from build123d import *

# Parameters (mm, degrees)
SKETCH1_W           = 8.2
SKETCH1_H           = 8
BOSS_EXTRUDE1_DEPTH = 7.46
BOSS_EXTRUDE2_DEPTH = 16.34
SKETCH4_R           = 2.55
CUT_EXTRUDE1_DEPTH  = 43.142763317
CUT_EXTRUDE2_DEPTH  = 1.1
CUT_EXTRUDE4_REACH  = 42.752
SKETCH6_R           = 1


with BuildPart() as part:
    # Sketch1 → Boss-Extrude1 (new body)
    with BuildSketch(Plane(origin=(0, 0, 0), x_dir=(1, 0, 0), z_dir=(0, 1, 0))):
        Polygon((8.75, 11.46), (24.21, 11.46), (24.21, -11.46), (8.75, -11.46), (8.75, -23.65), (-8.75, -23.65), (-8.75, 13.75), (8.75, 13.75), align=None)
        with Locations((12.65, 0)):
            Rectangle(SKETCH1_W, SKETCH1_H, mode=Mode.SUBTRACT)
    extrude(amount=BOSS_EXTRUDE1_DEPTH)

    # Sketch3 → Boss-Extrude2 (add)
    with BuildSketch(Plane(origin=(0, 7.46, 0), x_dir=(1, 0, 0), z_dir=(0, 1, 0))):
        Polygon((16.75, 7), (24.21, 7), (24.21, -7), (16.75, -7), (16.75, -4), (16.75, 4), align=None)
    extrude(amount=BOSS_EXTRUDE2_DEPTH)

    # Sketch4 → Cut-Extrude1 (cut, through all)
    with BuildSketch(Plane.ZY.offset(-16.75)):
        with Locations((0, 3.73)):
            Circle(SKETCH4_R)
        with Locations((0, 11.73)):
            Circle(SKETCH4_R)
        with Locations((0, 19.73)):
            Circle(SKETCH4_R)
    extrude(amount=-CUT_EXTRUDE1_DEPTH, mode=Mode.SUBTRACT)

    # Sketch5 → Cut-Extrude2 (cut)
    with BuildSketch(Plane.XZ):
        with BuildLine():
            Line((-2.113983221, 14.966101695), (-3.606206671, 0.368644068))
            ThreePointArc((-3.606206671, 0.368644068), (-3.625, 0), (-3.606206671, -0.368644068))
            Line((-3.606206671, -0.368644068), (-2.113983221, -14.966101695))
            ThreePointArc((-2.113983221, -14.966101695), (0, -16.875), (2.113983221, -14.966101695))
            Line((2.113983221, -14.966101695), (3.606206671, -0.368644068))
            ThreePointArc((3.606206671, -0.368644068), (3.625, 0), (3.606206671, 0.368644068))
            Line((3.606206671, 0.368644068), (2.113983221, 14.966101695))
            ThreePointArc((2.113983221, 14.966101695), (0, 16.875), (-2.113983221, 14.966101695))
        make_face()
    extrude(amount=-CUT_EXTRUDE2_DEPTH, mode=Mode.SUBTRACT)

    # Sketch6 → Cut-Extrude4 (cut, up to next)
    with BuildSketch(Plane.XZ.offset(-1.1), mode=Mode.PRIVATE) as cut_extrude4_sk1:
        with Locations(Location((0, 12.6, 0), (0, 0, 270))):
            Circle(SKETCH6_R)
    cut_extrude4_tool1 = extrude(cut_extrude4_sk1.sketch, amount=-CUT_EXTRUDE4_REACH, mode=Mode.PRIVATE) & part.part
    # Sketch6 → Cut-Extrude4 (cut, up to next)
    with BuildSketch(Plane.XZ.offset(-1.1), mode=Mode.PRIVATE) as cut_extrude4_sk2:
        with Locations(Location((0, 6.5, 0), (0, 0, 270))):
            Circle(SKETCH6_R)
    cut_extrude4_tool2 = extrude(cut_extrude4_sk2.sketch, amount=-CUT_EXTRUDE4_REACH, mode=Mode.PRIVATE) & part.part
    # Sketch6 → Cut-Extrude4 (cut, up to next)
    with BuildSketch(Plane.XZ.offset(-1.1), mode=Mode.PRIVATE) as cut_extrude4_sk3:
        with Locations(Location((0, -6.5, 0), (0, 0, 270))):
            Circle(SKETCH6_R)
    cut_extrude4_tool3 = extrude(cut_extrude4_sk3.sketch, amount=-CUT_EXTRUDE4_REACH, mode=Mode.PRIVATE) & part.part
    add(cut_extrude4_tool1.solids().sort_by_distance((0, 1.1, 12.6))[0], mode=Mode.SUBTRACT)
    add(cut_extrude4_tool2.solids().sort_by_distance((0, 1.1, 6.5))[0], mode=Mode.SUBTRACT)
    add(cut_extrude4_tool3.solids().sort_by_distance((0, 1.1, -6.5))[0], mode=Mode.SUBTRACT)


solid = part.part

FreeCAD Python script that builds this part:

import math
import FreeCAD as App
import Part
import Sketcher
from FreeCAD import Vector

doc = App.newDocument("Part")
params = doc.addObject("Spreadsheet::Sheet", "Params")
for row, (alias, value) in enumerate([
    ("sketch1_height", "8 mm"),
    ("sketch1_width", "17.5 mm"),
    ("sketch1_width2", "8.2 mm"),
    ("sketch1_height2", "37.4 mm"),
    ("sketch1_width3", "15.46 mm"),
    ("pad1_length", "7.46 mm"),
    ("sketch2_height", "14 mm"),
    ("sketch2_width", "7.46 mm"),
    ("pad2_length", "16.34 mm"),
    ("sketch3_diameter", "5.1 mm"),
    ("pocket2_length", "1.1 mm"),
    ("sketch5_diameter", "2 mm"),
    ("sketch6_diameter", "2 mm"),
    ("sketch7_diameter", "2 mm"),
], start=1):
    params.set(f"A{row}", alias)
    params.set(f"B{row}", "=" + value)
    params.setAlias(f"B{row}", alias)

body = doc.addObject("PartDesign::Body", "Body")

# Sketch on XZ plane
sketch1 = doc.addObject("Sketcher::SketchObject", "Sketch")
body.addObject(sketch1)
sketch1.AttachmentSupport = (doc.XZ_Plane, [""])
sketch1.MapMode = "FlatFace"
sketch1.addGeometry([
    Part.LineSegment(Vector(24.2, -11.5, 0), Vector(8.8, -11.5, 0)),  # 0
    Part.LineSegment(Vector(8.8, -11.5, 0), Vector(8.8, -13.8, 0)),  # 1
    Part.LineSegment(Vector(8.8, -13.8, 0), Vector(-8.8, -13.8, 0)),  # 2
    Part.LineSegment(Vector(-8.8, -13.8, 0), Vector(-8.8, 23.6, 0)),  # 3
    Part.LineSegment(Vector(-8.8, 23.6, 0), Vector(8.8, 23.6, 0)),  # 4
    Part.LineSegment(Vector(8.8, 23.6, 0), Vector(8.8, 11.5, 0)),  # 5
    Part.LineSegment(Vector(8.8, 11.5, 0), Vector(24.2, 11.5, 0)),  # 6
    Part.LineSegment(Vector(24.2, 11.5, 0), Vector(24.2, -11.5, 0)),  # 7
    Part.LineSegment(Vector(8.6, 4, 0), Vector(8.6, -4, 0)),  # 8
    Part.LineSegment(Vector(8.6, -4, 0), Vector(16.8, -4, 0)),  # 9
    Part.LineSegment(Vector(16.8, -4, 0), Vector(16.8, 4, 0)),  # 10
    Part.LineSegment(Vector(16.8, 4, 0), Vector(8.6, 4, 0)),  # 11
], False)
sketch1.addConstraint([
    Sketcher.Constraint("Coincident", 0, 2, 1, 1),
    Sketcher.Constraint("Coincident", 1, 2, 2, 1),
    Sketcher.Constraint("Coincident", 2, 2, 3, 1),
    Sketcher.Constraint("Coincident", 3, 2, 4, 1),
    Sketcher.Constraint("Coincident", 4, 2, 5, 1),
    Sketcher.Constraint("Coincident", 5, 2, 6, 1),
    Sketcher.Constraint("Coincident", 6, 2, 7, 1),
    Sketcher.Constraint("Coincident", 7, 2, 0, 1),
    Sketcher.Constraint("Coincident", 8, 2, 9, 1),
    Sketcher.Constraint("Coincident", 9, 2, 10, 1),
    Sketcher.Constraint("Coincident", 10, 2, 11, 1),
    Sketcher.Constraint("Coincident", 11, 2, 8, 1),
    Sketcher.Constraint("Horizontal", 0),
    Sketcher.Constraint("Vertical", 1),
    Sketcher.Constraint("Horizontal", 2),
    Sketcher.Constraint("Vertical", 3),
    Sketcher.Constraint("Horizontal", 4),
    Sketcher.Constraint("Vertical", 5),
    Sketcher.Constraint("Horizontal", 6),
    Sketcher.Constraint("Vertical", 7),
    Sketcher.Constraint("Vertical", 8),
    Sketcher.Constraint("Horizontal", 9),
    Sketcher.Constraint("Vertical", 10),
    Sketcher.Constraint("Horizontal", 11),
    Sketcher.Constraint("Symmetric", 0, 2, 5, 2, -1),
    Sketcher.Constraint("DistanceY", 8, 2, 8, 1, 8.0),
    Sketcher.Constraint("DistanceX", 2, 2, 2, 1, 17.5),
    Sketcher.Constraint("DistanceX", 9, 1, 9, 2, 8.2),
    Sketcher.Constraint("DistanceY", 3, 1, 3, 2, 37.4),
    Sketcher.Constraint("DistanceY", 8, 2, -1, 1, 4.0),
    Sketcher.Constraint("DistanceX", 0, 2, 9, 2, 8.0),
    Sketcher.Constraint("DistanceX", 0, 2, 0, 1, 15.46),
    Sketcher.Constraint("DistanceY", 1, 2, 1, 1, 2.29),
    Sketcher.Constraint("DistanceY", 5, 2, 5, 1, 12.19),
    Sketcher.Constraint("DistanceX", -1, 1, 0, 2, 8.75),
])
sketch1.setExpression("Constraints[25]", "Params.sketch1_height")
sketch1.setExpression("Constraints[26]", "Params.sketch1_width")
sketch1.setExpression("Constraints[27]", "Params.sketch1_width2")
sketch1.setExpression("Constraints[28]", "Params.sketch1_height2")
sketch1.setExpression("Constraints[31]", "Params.sketch1_width3")
pad1 = doc.addObject("PartDesign::Pad", "Pad")
body.addObject(pad1)
pad1.Profile = sketch1
pad1.setExpression("Length", "Params.pad1_length")
pad1.Reversed = True

# Sketch on XZ plane
sketch2 = doc.addObject("Sketcher::SketchObject", "Sketch001")
body.addObject(sketch2)
sketch2.AttachmentSupport = (doc.XZ_Plane, [""])
sketch2.MapMode = "FlatFace"
sketch2.AttachmentOffset = App.Placement(Vector(0, 0, -7.46), App.Rotation())
sketch2.addGeometry([
    Part.LineSegment(Vector(24, -7, 0), Vector(17, -7, 0)),
    Part.LineSegment(Vector(17, -7, 0), Vector(17, 7, 0)),
    Part.LineSegment(Vector(17, 7, 0), Vector(24, 7, 0)),
    Part.LineSegment(Vector(24, 7, 0), Vector(24, -7, 0)),
], False)
sketch2.addConstraint([
    Sketcher.Constraint("Coincident", 0, 2, 1, 1),
    Sketcher.Constraint("Coincident", 1, 2, 2, 1),
    Sketcher.Constraint("Coincident", 2, 2, 3, 1),
    Sketcher.Constraint("Coincident", 3, 2, 0, 1),
    Sketcher.Constraint("Horizontal", 0),
    Sketcher.Constraint("Vertical", 1),
    Sketcher.Constraint("Horizontal", 2),
    Sketcher.Constraint("Vertical", 3),
    Sketcher.Constraint("DistanceY", 1, 1, 1, 2, 14.0),
    Sketcher.Constraint("DistanceY", 0, 2, -1, 1, 7.0),
    Sketcher.Constraint("DistanceX", 0, 2, 0, 1, 7.46),
    Sketcher.Constraint("DistanceX", -1, 1, 0, 2, 16.75),
])
sketch2.setExpression("Constraints[8]", "Params.sketch2_height")
sketch2.setExpression("Constraints[10]", "Params.sketch2_width")
pad2 = doc.addObject("PartDesign::Pad", "Pad001")
body.addObject(pad2)
pad2.Profile = sketch2
pad2.setExpression("Length", "Params.pad2_length")
pad2.Reversed = True

# Sketch on YZ plane
sketch3 = doc.addObject("Sketcher::SketchObject", "Sketch002")
body.addObject(sketch3)
sketch3.AttachmentSupport = (doc.YZ_Plane, [""])
sketch3.MapMode = "FlatFace"
sketch3.AttachmentOffset = App.Placement(Vector(0, 0, 16.75), App.Rotation())
sketch3.addGeometry([
    Part.Circle(Vector(3.7, 0, 0), Vector(0, 0, 1), 2.5),
    Part.Circle(Vector(11.7, 0, 0), Vector(0, 0, 1), 2.5),
    Part.Circle(Vector(19.7, 0, 0), Vector(0, 0, 1), 2.5),
], False)
sketch3.addConstraint([
    Sketcher.Constraint("Equal", 0, 1),
    Sketcher.Constraint("Equal", 1, 2),
    Sketcher.Constraint("PointOnObject", 0, 3, -1),
    Sketcher.Constraint("PointOnObject", 1, 3, -1),
    Sketcher.Constraint("PointOnObject", 2, 3, -1),
    Sketcher.Constraint("Diameter", 0, 5.1),
    Sketcher.Constraint("DistanceX", 0, 3, 1, 3, 8.0),
    Sketcher.Constraint("DistanceX", 1, 3, 2, 3, 8.0),
    Sketcher.Constraint("DistanceX", -1, 1, 0, 3, 3.73),
])
sketch3.setExpression("Constraints[5]", "Params.sketch3_diameter")
pocket1 = doc.addObject("PartDesign::Pocket", "Pocket")
body.addObject(pocket1)
pocket1.Profile = sketch3
pocket1.Type = "ThroughAll"
pocket1.Reversed = True

# Sketch on XZ plane
sketch4 = doc.addObject("Sketcher::SketchObject", "Sketch003")
body.addObject(sketch4)
sketch4.AttachmentSupport = (doc.XZ_Plane, [""])
sketch4.MapMode = "FlatFace"
sketch4.addGeometry([
    Part.LineSegment(Vector(-2.1, 15, 0), Vector(-3.6, 0.4, 0)),  # 0
    Part.ArcOfCircle(Part.Circle(Vector(0, 0, 0), Vector(0, 0, 1), 3.6), math.radians(174.16), math.radians(185.84)),  # 1
    Part.LineSegment(Vector(-3.6, -0.4, 0), Vector(-2.1, -15, 0)),  # 2
    Part.ArcOfCircle(Part.Circle(Vector(0, -14.8, 0), Vector(0, 0, 1), 2.1), math.radians(-174), math.radians(-6)),  # 3
    Part.LineSegment(Vector(2.1, -15, 0), Vector(3.6, -0.4, 0)),  # 4
    Part.ArcOfCircle(Part.Circle(Vector(0, 0, 0), Vector(0, 0, 1), 3.6), math.radians(-5.84), math.radians(5.84)),  # 5
    Part.LineSegment(Vector(3.6, 0.4, 0), Vector(2.1, 15, 0)),  # 6
    Part.ArcOfCircle(Part.Circle(Vector(0, 14.8, 0), Vector(0, 0, 1), 2.1), math.radians(6), math.radians(174)),  # 7
], False)
sketch4.addConstraint([
    Sketcher.Constraint("Tangent", 0, 2, 1, 1),
    Sketcher.Constraint("Tangent", 1, 2, 2, 1),
    Sketcher.Constraint("Tangent", 2, 2, 3, 1),
    Sketcher.Constraint("Tangent", 3, 2, 4, 1),
    Sketcher.Constraint("Tangent", 4, 2, 5, 1),
    Sketcher.Constraint("Tangent", 5, 2, 6, 1),
    Sketcher.Constraint("Tangent", 6, 2, 7, 1),
    Sketcher.Constraint("Tangent", 7, 2, 0, 1),
    Sketcher.Constraint("Coincident", 1, 3, -1, 1),
    Sketcher.Constraint("Coincident", 5, 3, -1, 1),
    Sketcher.Constraint("Equal", 1, 5),
    Sketcher.Constraint("Equal", 3, 7),
    Sketcher.Constraint("Symmetric", 3, 3, 7, 3, -1, 1),
    Sketcher.Constraint("PointOnObject", 3, 3, -2),
    Sketcher.Constraint("Radius", 1, 3.625),
    Sketcher.Constraint("Radius", 3, 2.125),
    Sketcher.Constraint("DistanceY", 3, 3, 7, 3, 29.5),
])
pocket2 = doc.addObject("PartDesign::Pocket", "Pocket001")
body.addObject(pocket2)
pocket2.Profile = sketch4
pocket2.setExpression("Length", "Params.pocket2_length")

# Sketch on XZ plane
sketch5 = doc.addObject("Sketcher::SketchObject", "Sketch004")
body.addObject(sketch5)
sketch5.AttachmentSupport = (doc.XZ_Plane, [""])
sketch5.MapMode = "FlatFace"
sketch5.AttachmentOffset = App.Placement(Vector(0, 0, -1.1), App.Rotation())
sketch5.addGeometry(Part.Circle(Vector(0, 12.6, 0), Vector(0, 0, 1), 1), False)
sketch5.addConstraint([
    Sketcher.Constraint("PointOnObject", 0, 3, -2),
    Sketcher.Constraint("Diameter", 0, 2.0),
    Sketcher.Constraint("DistanceY", -1, 1, 0, 3, 12.6),
])
sketch5.setExpression("Constraints[1]", "Params.sketch5_diameter")
pocket3 = doc.addObject("PartDesign::Pocket", "Pocket002")
body.addObject(pocket3)
pocket3.Profile = sketch5
pocket3.Type = "UpToFirst"

# Sketch on XZ plane
sketch6 = doc.addObject("Sketcher::SketchObject", "Sketch005")
body.addObject(sketch6)
sketch6.AttachmentSupport = (doc.XZ_Plane, [""])
sketch6.MapMode = "FlatFace"
sketch6.AttachmentOffset = App.Placement(Vector(0, 0, -1.1), App.Rotation())
sketch6.addGeometry(Part.Circle(Vector(0, 6.5, 0), Vector(0, 0, 1), 1), False)
sketch6.addConstraint([
    Sketcher.Constraint("PointOnObject", 0, 3, -2),
    Sketcher.Constraint("Diameter", 0, 2.0),
    Sketcher.Constraint("DistanceY", -1, 1, 0, 3, 6.5),
])
sketch6.setExpression("Constraints[1]", "Params.sketch6_diameter")
pocket4 = doc.addObject("PartDesign::Pocket", "Pocket003")
body.addObject(pocket4)
pocket4.Profile = sketch6
pocket4.Type = "UpToFirst"

# Sketch on XZ plane
sketch7 = doc.addObject("Sketcher::SketchObject", "Sketch006")
body.addObject(sketch7)
sketch7.AttachmentSupport = (doc.XZ_Plane, [""])
sketch7.MapMode = "FlatFace"
sketch7.AttachmentOffset = App.Placement(Vector(0, 0, -1.1), App.Rotation())
sketch7.addGeometry(Part.Circle(Vector(0, -6.5, 0), Vector(0, 0, 1), 1), False)
sketch7.addConstraint([
    Sketcher.Constraint("PointOnObject", 0, 3, -2),
    Sketcher.Constraint("Diameter", 0, 2.0),
    Sketcher.Constraint("DistanceY", 0, 3, -1, 1, 6.5),
])
sketch7.setExpression("Constraints[1]", "Params.sketch7_diameter")
pocket5 = doc.addObject("PartDesign::Pocket", "Pocket004")
body.addObject(pocket5)
pocket5.Profile = sketch7
pocket5.Type = "UpToFirst"

doc.recompute()
